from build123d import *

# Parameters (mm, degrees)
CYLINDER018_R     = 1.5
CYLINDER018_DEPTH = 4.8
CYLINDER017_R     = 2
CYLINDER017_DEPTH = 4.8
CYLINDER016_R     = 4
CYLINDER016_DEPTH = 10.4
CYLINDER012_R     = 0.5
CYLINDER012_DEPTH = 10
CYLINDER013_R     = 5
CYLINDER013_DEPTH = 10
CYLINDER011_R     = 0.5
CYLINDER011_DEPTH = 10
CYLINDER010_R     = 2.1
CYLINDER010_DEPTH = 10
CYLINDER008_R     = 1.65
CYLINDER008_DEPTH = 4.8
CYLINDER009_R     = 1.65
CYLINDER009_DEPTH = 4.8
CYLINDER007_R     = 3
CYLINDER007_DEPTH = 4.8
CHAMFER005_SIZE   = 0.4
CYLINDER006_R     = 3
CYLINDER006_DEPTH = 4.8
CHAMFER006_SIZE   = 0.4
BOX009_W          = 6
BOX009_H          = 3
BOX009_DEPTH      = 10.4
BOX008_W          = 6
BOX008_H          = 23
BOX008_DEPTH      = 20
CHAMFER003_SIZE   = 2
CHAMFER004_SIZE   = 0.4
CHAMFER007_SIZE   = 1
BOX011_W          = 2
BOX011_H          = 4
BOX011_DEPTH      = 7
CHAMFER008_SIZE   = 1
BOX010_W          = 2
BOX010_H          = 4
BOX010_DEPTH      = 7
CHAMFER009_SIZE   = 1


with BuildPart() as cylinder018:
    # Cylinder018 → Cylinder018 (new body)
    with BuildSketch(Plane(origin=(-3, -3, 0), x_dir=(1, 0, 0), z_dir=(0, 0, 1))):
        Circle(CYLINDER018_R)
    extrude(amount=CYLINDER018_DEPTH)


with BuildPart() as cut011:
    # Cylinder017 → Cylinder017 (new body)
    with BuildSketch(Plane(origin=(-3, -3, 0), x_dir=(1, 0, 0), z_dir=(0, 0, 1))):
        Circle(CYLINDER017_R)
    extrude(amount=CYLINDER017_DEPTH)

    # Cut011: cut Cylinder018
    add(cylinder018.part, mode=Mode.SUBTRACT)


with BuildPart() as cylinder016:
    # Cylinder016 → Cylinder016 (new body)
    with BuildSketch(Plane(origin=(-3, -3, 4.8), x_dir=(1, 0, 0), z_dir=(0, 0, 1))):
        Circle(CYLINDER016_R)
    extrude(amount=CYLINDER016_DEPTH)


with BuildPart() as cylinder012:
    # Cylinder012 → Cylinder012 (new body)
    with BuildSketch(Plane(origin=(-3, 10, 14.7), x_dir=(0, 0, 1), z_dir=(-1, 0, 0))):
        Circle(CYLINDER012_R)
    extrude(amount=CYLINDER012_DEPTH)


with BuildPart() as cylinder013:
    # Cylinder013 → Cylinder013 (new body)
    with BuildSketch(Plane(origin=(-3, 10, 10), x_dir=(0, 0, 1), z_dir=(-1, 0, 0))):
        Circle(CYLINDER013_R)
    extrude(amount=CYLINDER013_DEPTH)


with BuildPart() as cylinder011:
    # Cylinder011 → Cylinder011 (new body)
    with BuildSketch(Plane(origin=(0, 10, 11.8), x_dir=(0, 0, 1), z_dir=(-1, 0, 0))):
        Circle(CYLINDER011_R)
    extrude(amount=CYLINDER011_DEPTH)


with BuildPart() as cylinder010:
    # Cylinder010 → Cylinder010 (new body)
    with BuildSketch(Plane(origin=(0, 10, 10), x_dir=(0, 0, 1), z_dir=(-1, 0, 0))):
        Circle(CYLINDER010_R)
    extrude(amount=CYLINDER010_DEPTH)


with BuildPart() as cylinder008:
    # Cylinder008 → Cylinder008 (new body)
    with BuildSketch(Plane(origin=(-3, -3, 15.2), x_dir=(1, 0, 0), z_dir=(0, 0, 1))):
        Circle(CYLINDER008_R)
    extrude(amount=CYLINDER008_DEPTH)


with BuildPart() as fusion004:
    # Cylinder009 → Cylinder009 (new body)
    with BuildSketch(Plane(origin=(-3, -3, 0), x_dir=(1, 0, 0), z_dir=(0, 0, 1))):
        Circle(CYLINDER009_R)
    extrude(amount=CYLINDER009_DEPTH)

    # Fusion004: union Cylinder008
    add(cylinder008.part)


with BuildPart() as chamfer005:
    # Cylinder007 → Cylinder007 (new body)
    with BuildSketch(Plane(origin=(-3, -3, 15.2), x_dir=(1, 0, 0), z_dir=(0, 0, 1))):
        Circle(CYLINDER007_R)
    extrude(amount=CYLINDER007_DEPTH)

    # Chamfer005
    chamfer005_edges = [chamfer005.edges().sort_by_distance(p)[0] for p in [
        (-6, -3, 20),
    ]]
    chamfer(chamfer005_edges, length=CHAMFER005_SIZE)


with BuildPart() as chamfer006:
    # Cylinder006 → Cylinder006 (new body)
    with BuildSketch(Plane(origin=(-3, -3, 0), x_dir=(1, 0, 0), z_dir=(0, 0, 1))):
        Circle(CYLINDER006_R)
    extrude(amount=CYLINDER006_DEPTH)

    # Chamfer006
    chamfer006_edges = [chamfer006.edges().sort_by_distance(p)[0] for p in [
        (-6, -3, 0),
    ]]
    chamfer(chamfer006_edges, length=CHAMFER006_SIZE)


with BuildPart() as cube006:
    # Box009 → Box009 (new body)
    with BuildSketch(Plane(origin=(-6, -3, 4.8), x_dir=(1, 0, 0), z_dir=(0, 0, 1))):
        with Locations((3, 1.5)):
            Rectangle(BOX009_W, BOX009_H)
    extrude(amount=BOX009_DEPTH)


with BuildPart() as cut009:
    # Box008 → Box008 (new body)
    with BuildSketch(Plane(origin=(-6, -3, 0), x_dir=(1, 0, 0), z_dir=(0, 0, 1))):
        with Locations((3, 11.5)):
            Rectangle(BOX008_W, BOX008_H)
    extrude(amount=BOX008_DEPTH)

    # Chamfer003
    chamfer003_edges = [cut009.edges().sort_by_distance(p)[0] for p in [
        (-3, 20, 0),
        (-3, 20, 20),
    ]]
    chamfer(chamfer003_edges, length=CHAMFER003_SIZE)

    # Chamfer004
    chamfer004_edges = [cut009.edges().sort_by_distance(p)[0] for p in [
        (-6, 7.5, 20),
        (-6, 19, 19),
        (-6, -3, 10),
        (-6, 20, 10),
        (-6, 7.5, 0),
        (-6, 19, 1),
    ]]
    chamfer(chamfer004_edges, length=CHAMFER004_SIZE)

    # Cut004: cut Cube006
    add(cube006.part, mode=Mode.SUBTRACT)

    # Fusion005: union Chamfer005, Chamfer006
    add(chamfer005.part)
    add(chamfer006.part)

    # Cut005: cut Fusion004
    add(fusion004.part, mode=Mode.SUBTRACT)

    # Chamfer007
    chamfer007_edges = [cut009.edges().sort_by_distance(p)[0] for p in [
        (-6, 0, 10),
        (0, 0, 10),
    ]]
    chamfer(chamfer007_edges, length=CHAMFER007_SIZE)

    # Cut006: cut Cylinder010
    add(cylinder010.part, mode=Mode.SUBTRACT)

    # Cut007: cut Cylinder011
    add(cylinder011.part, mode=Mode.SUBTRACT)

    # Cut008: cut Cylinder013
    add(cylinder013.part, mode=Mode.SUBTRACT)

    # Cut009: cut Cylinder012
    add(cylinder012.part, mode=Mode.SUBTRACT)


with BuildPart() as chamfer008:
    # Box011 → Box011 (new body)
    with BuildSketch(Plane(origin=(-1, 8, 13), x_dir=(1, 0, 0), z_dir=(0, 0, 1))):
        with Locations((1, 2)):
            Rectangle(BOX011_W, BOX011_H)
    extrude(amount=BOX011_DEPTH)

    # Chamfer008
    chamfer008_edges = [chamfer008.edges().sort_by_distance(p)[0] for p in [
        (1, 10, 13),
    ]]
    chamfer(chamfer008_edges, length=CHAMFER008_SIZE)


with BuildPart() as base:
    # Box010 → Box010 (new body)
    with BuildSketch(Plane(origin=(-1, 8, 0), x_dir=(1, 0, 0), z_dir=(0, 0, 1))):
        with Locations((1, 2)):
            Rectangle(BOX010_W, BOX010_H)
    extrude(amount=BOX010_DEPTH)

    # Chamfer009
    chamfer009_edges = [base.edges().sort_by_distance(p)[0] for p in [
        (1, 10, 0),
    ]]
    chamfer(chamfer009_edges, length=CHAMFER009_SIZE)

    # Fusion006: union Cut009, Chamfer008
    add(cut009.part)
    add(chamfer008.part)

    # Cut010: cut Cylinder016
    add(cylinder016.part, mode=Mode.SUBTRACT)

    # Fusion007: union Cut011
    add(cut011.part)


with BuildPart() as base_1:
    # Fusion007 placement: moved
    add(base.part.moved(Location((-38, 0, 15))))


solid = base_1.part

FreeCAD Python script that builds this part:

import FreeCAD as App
import Part
import Sketcher


def edges_at(feature, points):
    """Names of the edges that pass closest to the given points."""
    edges = feature.Shape.Edges
    near = lambda p: min(range(len(edges)), key=lambda i: edges[i].distToShape(Part.Vertex(*p))[0])
    return sorted({f"Edge{near(p) + 1}" for p in points})

doc = App.newDocument("Part")
body = doc.addObject("PartDesign::Body", "Body")

sketch1 = body.newObject("Sketcher::SketchObject", "Sketch")
sketch1.AttachmentSupport = (doc.getObject("XY_Plane"), [""])
sketch1.MapMode = "FlatFace"
sketch1.addGeometry(Part.Circle(App.Vector(-3, -3, 0), App.Vector(0, 0, 1), 1.5), False)
sketch1.addConstraint(Sketcher.Constraint("Diameter", 0, 3.0))
sketch1.addConstraint(Sketcher.Constraint("DistanceX", 0, 3, -1, 1, 3.0))
sketch1.addConstraint(Sketcher.Constraint("DistanceY", 0, 3, -1, 1, 3.0))
pad1 = body.newObject("PartDesign::Pad", "Pad")
pad1.Profile = sketch1
pad1.Length = 4.8
body2 = doc.addObject("PartDesign::Body", "Body001")

sketch2 = body2.newObject("Sketcher::SketchObject", "Sketch001")
sketch2.AttachmentSupport = (doc.getObject("XY_Plane001"), [""])
sketch2.MapMode = "FlatFace"
sketch2.addGeometry(Part.Circle(App.Vector(-3, -3, 0), App.Vector(0, 0, 1), 2), False)
sketch2.addConstraint(Sketcher.Constraint("Diameter", 0, 4.0))
sketch2.addConstraint(Sketcher.Constraint("DistanceX", 0, 3, -1, 1, 3.0))
sketch2.addConstraint(Sketcher.Constraint("DistanceY", 0, 3, -1, 1, 3.0))
pad2 = body2.newObject("PartDesign::Pad", "Pad001")
pad2.Profile = sketch2
pad2.Length = 4.8
doc.recompute()

boolean = body2.newObject("PartDesign::Boolean", "Boolean")
boolean.Type = "Cut"
boolean.addObjects([body])
body3 = doc.addObject("PartDesign::Body", "Body002")

sketch3 = body3.newObject("Sketcher::SketchObject", "Sketch002")
sketch3.AttachmentSupport = (doc.getObject("XY_Plane002"), [""])
sketch3.MapMode = "FlatFace"
sketch3.AttachmentOffset = App.Placement(App.Vector(0, 0, 4.8), App.Rotation())
sketch3.addGeometry(Part.Circle(App.Vector(-3, -3, 0), App.Vector(0, 0, 1), 4), False)
sketch3.addConstraint(Sketcher.Constraint("Diameter", 0, 8.0))
sketch3.addConstraint(Sketcher.Constraint("DistanceX", 0, 3, -1, 1, 3.0))
sketch3.addConstraint(Sketcher.Constraint("DistanceY", 0, 3, -1, 1, 3.0))
pad3 = body3.newObject("PartDesign::Pad", "Pad002")
pad3.Profile = sketch3
pad3.Length = 10.4
body4 = doc.addObject("PartDesign::Body", "Body003")

sketch4 = body4.newObject("Sketcher::SketchObject", "Sketch003")
sketch4.AttachmentSupport = (doc.getObject("YZ_Plane003"), [""])
sketch4.MapMode = "FlatFace"
sketch4.AttachmentOffset = App.Placement(App.Vector(0, 0, -3), App.Rotation())
sketch4.addGeometry(Part.Circle(App.Vector(10, 14.7, 0), App.Vector(0, 0, 1), 0.5), False)
sketch4.addConstraint(Sketcher.Constraint("Diameter", 0, 1.0))
sketch4.addConstraint(Sketcher.Constraint("DistanceX", -1, 1, 0, 3, 10.0))
sketch4.addConstraint(Sketcher.Constraint("DistanceY", -1, 1, 0, 3, 14.7))
pad4 = body4.newObject("PartDesign::Pad", "Pad003")
pad4.Profile = sketch4
pad4.Length = 10
pad4.Reversed = True
body5 = doc.addObject("PartDesign::Body", "Body004")

sketch5 = body5.newObject("Sketcher::SketchObject", "Sketch004")
sketch5.AttachmentSupport = (doc.getObject("YZ_Plane004"), [""])
sketch5.MapMode = "FlatFace"
sketch5.AttachmentOffset = App.Placement(App.Vector(0, 0, -3), App.Rotation())
sketch5.addGeometry(Part.Circle(App.Vector(10, 10, 0), App.Vector(0, 0, 1), 5), False)
sketch5.addConstraint(Sketcher.Constraint("Diameter", 0, 10.0))
sketch5.addConstraint(Sketcher.Constraint("DistanceX", -1, 1, 0, 3, 10.0))
sketch5.addConstraint(Sketcher.Constraint("DistanceY", -1, 1, 0, 3, 10.0))
pad5 = body5.newObject("PartDesign::Pad", "Pad004")
pad5.Profile = sketch5
pad5.Length = 10
pad5.Reversed = True
body6 = doc.addObject("PartDesign::Body", "Body005")

sketch6 = body6.newObject("Sketcher::SketchObject", "Sketch005")
sketch6.AttachmentSupport = (doc.getObject("YZ_Plane005"), [""])
sketch6.MapMode = "FlatFace"
sketch6.addGeometry(Part.Circle(App.Vector(10, 11.8, 0), App.Vector(0, 0, 1), 0.5), False)
sketch6.addConstraint(Sketcher.Constraint("Diameter", 0, 1.0))
sketch6.addConstraint(Sketcher.Constraint("DistanceX", -1, 1, 0, 3, 10.0))
sketch6.addConstraint(Sketcher.Constraint("DistanceY", -1, 1, 0, 3, 11.8))
pad6 = body6.newObject("PartDesign::Pad", "Pad005")
pad6.Profile = sketch6
pad6.Length = 10
pad6.Reversed = True
body7 = doc.addObject("PartDesign::Body", "Body006")

sketch7 = body7.newObject("Sketcher::SketchObject", "Sketch006")
sketch7.AttachmentSupport = (doc.getObject("YZ_Plane006"), [""])
sketch7.MapMode = "FlatFace"
sketch7.addGeometry(Part.Circle(App.Vector(10, 10, 0), App.Vector(0, 0, 1), 2.1), False)
sketch7.addConstraint(Sketcher.Constraint("Diameter", 0, 4.2))
sketch7.addConstraint(Sketcher.Constraint("DistanceX", -1, 1, 0, 3, 10.0))
sketch7.addConstraint(Sketcher.Constraint("DistanceY", -1, 1, 0, 3, 10.0))
pad7 = body7.newObject("PartDesign::Pad", "Pad006")
pad7.Profile = sketch7
pad7.Length = 10
pad7.Reversed = True
body8 = doc.addObject("PartDesign::Body", "Body007")

sketch8 = body8.newObject("Sketcher::SketchObject", "Sketch007")
sketch8.AttachmentSupport = (doc.getObject("XY_Plane007"), [""])
sketch8.MapMode = "FlatFace"
sketch8.AttachmentOffset = App.Placement(App.Vector(0, 0, 15.2), App.Rotation())
sketch8.addGeometry(Part.Circle(App.Vector(-3, -3, 0), App.Vector(0, 0, 1), 1.6), False)
sketch8.addConstraint(Sketcher.Constraint("Diameter", 0, 3.3))
sketch8.addConstraint(Sketcher.Constraint("DistanceX", 0, 3, -1, 1, 3.0))
sketch8.addConstraint(Sketcher.Constraint("DistanceY", 0, 3, -1, 1, 3.0))
pad8 = body8.newObject("PartDesign::Pad", "Pad007")
pad8.Profile = sketch8
pad8.Length = 4.8
body9 = doc.addObject("PartDesign::Body", "Body008")
body9.AllowCompound = True

sketch9 = body9.newObject("Sketcher::SketchObject", "Sketch008")
sketch9.AttachmentSupport = (doc.getObject("XY_Plane008"), [""])
sketch9.MapMode = "FlatFace"
sketch9.addGeometry(Part.Circle(App.Vector(-3, -3, 0), App.Vector(0, 0, 1), 1.6), False)
sketch9.addConstraint(Sketcher.Constraint("Diameter", 0, 3.3))
sketch9.addConstraint(Sketcher.Constraint("DistanceX", 0, 3, -1, 1, 3.0))
sketch9.addConstraint(Sketcher.Constraint("DistanceY", 0, 3, -1, 1, 3.0))
pad9 = body9.newObject("PartDesign::Pad", "Pad008")
pad9.Profile = sketch9
pad9.Length = 4.8
doc.recompute()

boolean2 = body9.newObject("PartDesign::Boolean", "Boolean001")
boolean2.Type = "Fuse"
boolean2.addObjects([body8])
body10 = doc.addObject("PartDesign::Body", "Body009")

sketch10 = body10.newObject("Sketcher::SketchObject", "Sketch009")
sketch10.AttachmentSupport = (doc.getObject("XY_Plane009"), [""])
sketch10.MapMode = "FlatFace"
sketch10.AttachmentOffset = App.Placement(App.Vector(0, 0, 15.2), App.Rotation())
sketch10.addGeometry(Part.Circle(App.Vector(-3, -3, 0), App.Vector(0, 0, 1), 3), False)
sketch10.addConstraint(Sketcher.Constraint("Diameter", 0, 6.0))
sketch10.addConstraint(Sketcher.Constraint("DistanceX", 0, 3, -1, 1, 3.0))
sketch10.addConstraint(Sketcher.Constraint("DistanceY", 0, 3, -1, 1, 3.0))
pad10 = body10.newObject("PartDesign::Pad", "Pad009")
pad10.Profile = sketch10
pad10.Length = 4.8
doc.recompute()

chamfer = body10.newObject("PartDesign::Chamfer", "Chamfer")
chamfer.Base = (pad10, edges_at(pad10, [(-6, -3, 20)]))
chamfer.Size = 0.4
body11 = doc.addObject("PartDesign::Body", "Body010")

sketch11 = body11.newObject("Sketcher::SketchObject", "Sketch010")
sketch11.AttachmentSupport = (doc.getObject("XY_Plane010"), [""])
sketch11.MapMode = "FlatFace"
sketch11.addGeometry(Part.Circle(App.Vector(-3, -3, 0), App.Vector(0, 0, 1), 3), False)
sketch11.addConstraint(Sketcher.Constraint("Diameter", 0, 6.0))
sketch11.addConstraint(Sketcher.Constraint("DistanceX", 0, 3, -1, 1, 3.0))
sketch11.addConstraint(Sketcher.Constraint("DistanceY", 0, 3, -1, 1, 3.0))
pad11 = body11.newObject("PartDesign::Pad", "Pad010")
pad11.Profile = sketch11
pad11.Length = 4.8
doc.recompute()

chamfer2 = body11.newObject("PartDesign::Chamfer", "Chamfer001")
chamfer2.Base = (pad11, edges_at(pad11, [(-6, -3, 0)]))
chamfer2.Size = 0.4
body12 = doc.addObject("PartDesign::Body", "Body011")

sketch12 = body12.newObject("Sketcher::SketchObject", "Sketch011")
sketch12.AttachmentSupport = (doc.getObject("XY_Plane011"), [""])
sketch12.MapMode = "FlatFace"
sketch12.AttachmentOffset = App.Placement(App.Vector(0, 0, 4.8), App.Rotation())
sketch12.addGeometry(Part.LineSegment(App.Vector(-6, 0, 0), App.Vector(-6, -3, 0)), False)
sketch12.addGeometry(Part.LineSegment(App.Vector(-6, -3, 0), App.Vector(0, -3, 0)), False)
sketch12.addGeometry(Part.LineSegment(App.Vector(0, -3, 0), App.Vector(0, 0, 0)), False)
sketch12.addGeometry(Part.LineSegment(App.Vector(0, 0, 0), App.Vector(-6, 0, 0)), False)
sketch12.addConstraint(Sketcher.Constraint("Coincident", 0, 2, 1, 1))
sketch12.addConstraint(Sketcher.Constraint("Coincident", 1, 2, 2, 1))
sketch12.addConstraint(Sketcher.Constraint("Coincident", 2, 2, 3, 1))
sketch12.addConstraint(Sketcher.Constraint("Coincident", 3, 2, 0, 1))
sketch12.addConstraint(Sketcher.Constraint("Vertical", 0))
sketch12.addConstraint(Sketcher.Constraint("Horizontal", 1))
sketch12.addConstraint(Sketcher.Constraint("Vertical", 2))
sketch12.addConstraint(Sketcher.Constraint("Horizontal", 3))
sketch12.addConstraint(Sketcher.Constraint("Coincident", 2, 2, -1, 1))
sketch12.addConstraint(Sketcher.Constraint("DistanceX", 1, 1, 1, 2, 6.0))
sketch12.addConstraint(Sketcher.Constraint("DistanceY", 0, 2, 0, 1, 3.0))
pad12 = body12.newObject("PartDesign::Pad", "Pad011")
pad12.Profile = sketch12
pad12.Length = 10.4
body13 = doc.addObject("PartDesign::Body", "Body012")

sketch13 = body13.newObject("Sketcher::SketchObject", "Sketch012")
sketch13.AttachmentSupport = (doc.getObject("XY_Plane012"), [""])
sketch13.MapMode = "FlatFace"
sketch13.addGeometry(Part.LineSegment(App.Vector(-6, 20, 0), App.Vector(-6, -3, 0)), False)
sketch13.addGeometry(Part.LineSegment(App.Vector(-6, -3, 0), App.Vector(0, -3, 0)), False)
sketch13.addGeometry(Part.LineSegment(App.Vector(0, -3, 0), App.Vector(0, 20, 0)), False)
sketch13.addGeometry(Part.LineSegment(App.Vector(0, 20, 0), App.Vector(-6, 20, 0)), False)
sketch13.addConstraint(Sketcher.Constraint("Coincident", 0, 2, 1, 1))
sketch13.addConstraint(Sketcher.Constraint("Coincident", 1, 2, 2, 1))
sketch13.addConstraint(Sketcher.Constraint("Coincident", 2, 2, 3, 1))
sketch13.addConstraint(Sketcher.Constraint("Coincident", 3, 2, 0, 1))
sketch13.addConstraint(Sketcher.Constraint("Vertical", 0))
sketch13.addConstraint(Sketcher.Constraint("Horizontal", 1))
sketch13.addConstraint(Sketcher.Constraint("Vertical", 2))
sketch13.addConstraint(Sketcher.Constraint("Horizontal", 3))
sketch13.addConstraint(Sketcher.Constraint("PointOnObject", 1, 2, -2))
sketch13.addConstraint(Sketcher.Constraint("DistanceX", 1, 1, 1, 2, 6.0))
sketch13.addConstraint(Sketcher.Constraint("DistanceY", 0, 2, 0, 1, 23.0))
sketch13.addConstraint(Sketcher.Constraint("DistanceY", 0, 2, -1, 1, 3.0))
pad13 = body13.newObject("PartDesign::Pad", "Pad012")
pad13.Profile = sketch13
pad13.Length = 20
doc.recompute()

chamfer3 = body13.newObject("PartDesign::Chamfer", "Chamfer002")
chamfer3.Base = (pad13, edges_at(pad13, [(-3, 20, 0), (-3, 20, 20)]))
chamfer3.Size = 2
doc.recompute()

chamfer4 = body13.newObject("PartDesign::Chamfer", "Chamfer003")
chamfer4.Base = (chamfer3, edges_at(chamfer3, [
    (-6, 7.5, 20),
    (-6, 19, 19),
    (-6, -3, 10),
    (-6, 20, 10),
    (-6, 7.5, 0),
    (-6, 19, 1),
]))
chamfer4.Size = 0.4
doc.recompute()

boolean3 = body13.newObject("PartDesign::Boolean", "Boolean002")
boolean3.Type = "Cut"
boolean3.addObjects([body12])
doc.recompute()

boolean4 = body13.newObject("PartDesign::Boolean", "Boolean003")
boolean4.Type = "Fuse"
boolean4.addObjects([body10])
doc.recompute()

boolean5 = body13.newObject("PartDesign::Boolean", "Boolean004")
boolean5.Type = "Fuse"
boolean5.addObjects([body11])
doc.recompute()

boolean6 = body13.newObject("PartDesign::Boolean", "Boolean005")
boolean6.Type = "Cut"
boolean6.addObjects([body9])
doc.recompute()

chamfer5 = body13.newObject("PartDesign::Chamfer", "Chamfer004")
chamfer5.Base = (boolean6, edges_at(boolean6, [(-6, 0, 10), (0, 0, 10)]))
chamfer5.Size = 1
doc.recompute()

boolean7 = body13.newObject("PartDesign::Boolean", "Boolean006")
boolean7.Type = "Cut"
boolean7.addObjects([body7])
doc.recompute()

boolean8 = body13.newObject("PartDesign::Boolean", "Boolean007")
boolean8.Type = "Cut"
boolean8.addObjects([body6])
doc.recompute()

boolean9 = body13.newObject("PartDesign::Boolean", "Boolean008")
boolean9.Type = "Cut"
boolean9.addObjects([body5])
doc.recompute()

boolean10 = body13.newObject("PartDesign::Boolean", "Boolean009")
boolean10.Type = "Cut"
boolean10.addObjects([body4])
body14 = doc.addObject("PartDesign::Body", "Body013")

sketch14 = body14.newObject("Sketcher::SketchObject", "Sketch013")
sketch14.AttachmentSupport = (doc.getObject("XY_Plane013"), [""])
sketch14.MapMode = "FlatFace"
sketch14.AttachmentOffset = App.Placement(App.Vector(0, 0, 13), App.Rotation())
sketch14.addGeometry(Part.LineSegment(App.Vector(-1, 12, 0), App.Vector(-1, 8, 0)), False)
sketch14.addGeometry(Part.LineSegment(App.Vector(-1, 8, 0), App.Vector(1, 8, 0)), False)
sketch14.addGeometry(Part.LineSegment(App.Vector(1, 8, 0), App.Vector(1, 12, 0)), False)
sketch14.addGeometry(Part.LineSegment(App.Vector(1, 12, 0), App.Vector(-1, 12, 0)), False)
sketch14.addConstraint(Sketcher.Constraint("Coincident", 0, 2, 1, 1))
sketch14.addConstraint(Sketcher.Constraint("Coincident", 1, 2, 2, 1))
sketch14.addConstraint(Sketcher.Constraint("Coincident", 2, 2, 3, 1))
sketch14.addConstraint(Sketcher.Constraint("Coincident", 3, 2, 0, 1))
sketch14.addConstraint(Sketcher.Constraint("Vertical", 0))
sketch14.addConstraint(Sketcher.Constraint("Horizontal", 1))
sketch14.addConstraint(Sketcher.Constraint("Vertical", 2))
sketch14.addConstraint(Sketcher.Constraint("Horizontal", 3))
sketch14.addConstraint(Sketcher.Constraint("DistanceX", 1, 1, 1, 2, 2.0))
sketch14.addConstraint(Sketcher.Constraint("DistanceY", 0, 2, 0, 1, 4.0))
sketch14.addConstraint(Sketcher.Constraint("DistanceX", 0, 2, -1, 1, 1.0))
sketch14.addConstraint(Sketcher.Constraint("DistanceY", -1, 1, 0, 2, 8.0))
pad14 = body14.newObject("PartDesign::Pad", "Pad013")
pad14.Profile = sketch14
pad14.Length = 7
doc.recompute()

chamfer6 = body14.newObject("PartDesign::Chamfer", "Chamfer005")
chamfer6.Base = (pad14, edges_at(pad14, [(1, 10, 13)]))
chamfer6.Size = 1
body15 = doc.addObject("PartDesign::Body", "Body014")

sketch15 = body15.newObject("Sketcher::SketchObject", "Sketch014")
sketch15.AttachmentSupport = (doc.getObject("XY_Plane014"), [""])
sketch15.MapMode = "FlatFace"
sketch15.addGeometry(Part.LineSegment(App.Vector(-1, 12, 0), App.Vector(-1, 8, 0)), False)
sketch15.addGeometry(Part.LineSegment(App.Vector(-1, 8, 0), App.Vector(1, 8, 0)), False)
sketch15.addGeometry(Part.LineSegment(App.Vector(1, 8, 0), App.Vector(1, 12, 0)), False)
sketch15.addGeometry(Part.LineSegment(App.Vector(1, 12, 0), App.Vector(-1, 12, 0)), False)
sketch15.addConstraint(Sketcher.Constraint("Coincident", 0, 2, 1, 1))
sketch15.addConstraint(Sketcher.Constraint("Coincident", 1, 2, 2, 1))
sketch15.addConstraint(Sketcher.Constraint("Coincident", 2, 2, 3, 1))
sketch15.addConstraint(Sketcher.Constraint("Coincident", 3, 2, 0, 1))
sketch15.addConstraint(Sketcher.Constraint("Vertical", 0))
sketch15.addConstraint(Sketcher.Constraint("Horizontal", 1))
sketch15.addConstraint(Sketcher.Constraint("Vertical", 2))
sketch15.addConstraint(Sketcher.Constraint("Horizontal", 3))
sketch15.addConstraint(Sketcher.Constraint("DistanceX", 1, 1, 1, 2, 2.0))
sketch15.addConstraint(Sketcher.Constraint("DistanceY", 0, 2, 0, 1, 4.0))
sketch15.addConstraint(Sketcher.Constraint("DistanceX", 0, 2, -1, 1, 1.0))
sketch15.addConstraint(Sketcher.Constraint("DistanceY", -1, 1, 0, 2, 8.0))
pad15 = body15.newObject("PartDesign::Pad", "Pad014")
pad15.Profile = sketch15
pad15.Length = 7
doc.recompute()

chamfer7 = body15.newObject("PartDesign::Chamfer", "Chamfer006")
chamfer7.Base = (pad15, edges_at(pad15, [(1, 10, 0)]))
chamfer7.Size = 1
doc.recompute()

boolean11 = body15.newObject("PartDesign::Boolean", "Boolean010")
boolean11.Type = "Fuse"
boolean11.addObjects([body13])
doc.recompute()

boolean12 = body15.newObject("PartDesign::Boolean", "Boolean011")
boolean12.Type = "Fuse"
boolean12.addObjects([body14])
doc.recompute()

boolean13 = body15.newObject("PartDesign::Boolean", "Boolean012")
boolean13.Type = "Cut"
boolean13.addObjects([body3])
doc.recompute()

boolean14 = body15.newObject("PartDesign::Boolean", "Boolean013")
boolean14.Type = "Fuse"
boolean14.addObjects([body2])
body16 = doc.addObject("PartDesign::Body", "Body015")
doc.recompute()

body15.Placement = App.Placement(App.Vector(-38, 0, 15), App.Rotation(App.Vector(0, 0, 1), 0))
boolean15 = body16.newObject("PartDesign::Boolean", "Boolean014")
boolean15.Type = "Fuse"
boolean15.addObjects([body15])

doc.recompute()
